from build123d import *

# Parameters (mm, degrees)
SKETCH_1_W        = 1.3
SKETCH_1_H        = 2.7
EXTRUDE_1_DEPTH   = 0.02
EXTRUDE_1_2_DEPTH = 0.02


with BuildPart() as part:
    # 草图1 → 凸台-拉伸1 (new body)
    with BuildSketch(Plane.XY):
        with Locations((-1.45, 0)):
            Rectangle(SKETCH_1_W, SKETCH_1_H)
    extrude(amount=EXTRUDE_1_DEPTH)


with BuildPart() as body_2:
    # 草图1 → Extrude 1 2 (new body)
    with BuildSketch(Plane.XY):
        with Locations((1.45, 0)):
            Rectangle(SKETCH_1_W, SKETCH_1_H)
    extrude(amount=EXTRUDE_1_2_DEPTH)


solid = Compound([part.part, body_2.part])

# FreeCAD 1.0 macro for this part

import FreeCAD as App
import Part
import Sketcher

doc = App.newDocument("Part")
body = doc.addObject("PartDesign::Body", "Body")

sketch1 = body.newObject("Sketcher::SketchObject", "Sketch")
sketch1.AttachmentSupport = (doc.getObject("XY_Plane"), [""])
sketch1.MapMode = "FlatFace"
sketch1.addGeometry([
    Part.LineSegment(App.Vector(-2.1, 1.4, 0), App.Vector(-2.1, -1.4, 0)),
    Part.LineSegment(App.Vector(-2.1, -1.4, 0), App.Vector(-0.8, -1.4, 0)),
    Part.LineSegment(App.Vector(-0.8, -1.4, 0), App.Vector(-0.8, 1.4, 0)),
    Part.LineSegment(App.Vector(-0.8, 1.4, 0), App.Vector(-2.1, 1.4, 0)),
], False)
sketch1.addConstraint([
    Sketcher.Constraint("Coincident", 0, 2, 1, 1),
    Sketcher.Constraint("Coincident", 1, 2, 2, 1),
    Sketcher.Constraint("Coincident", 2, 2, 3, 1),
    Sketcher.Constraint("Coincident", 3, 2, 0, 1),
    Sketcher.Constraint("Vertical", 0),
    Sketcher.Constraint("Horizontal", 1),
    Sketcher.Constraint("Vertical", 2),
    Sketcher.Constraint("Horizontal", 3),
    Sketcher.Constraint("DistanceX", 1, 1, 1, 2, 1.3),
    Sketcher.Constraint("DistanceY", 0, 2, 0, 1, 2.7),
    Sketcher.Constraint("DistanceX", 0, 2, -1, 1, 2.1),
    Sketcher.Constraint("DistanceY", 0, 2, -1, 1, 1.35),
])
pad1 = body.newObject("PartDesign::Pad", "Pad")
pad1.Profile = sketch1
pad1.Length = 0.02
body2 = doc.addObject("PartDesign::Body", "Body001")

sketch2 = body2.newObject("Sketcher::SketchObject", "Sketch001")
sketch2.AttachmentSupport = (doc.getObject("XY_Plane001"), [""])
sketch2.MapMode = "FlatFace"
sketch2.addGeometry([
    Part.LineSegment(App.Vector(0.8, 1.4, 0), App.Vector(0.8, -1.4, 0)),
    Part.LineSegment(App.Vector(0.8, -1.4, 0), App.Vector(2.1, -1.4, 0)),
    Part.LineSegment(App.Vector(2.1, -1.4, 0), App.Vector(2.1, 1.4, 0)),
    Part.LineSegment(App.Vector(2.1, 1.4, 0), App.Vector(0.8, 1.4, 0)),
], False)
sketch2.addConstraint([
    Sketcher.Constraint("Coincident", 0, 2, 1, 1),
    Sketcher.Constraint("Coincident", 1, 2, 2, 1),
    Sketcher.Constraint("Coincident", 2, 2, 3, 1),
    Sketcher.Constraint("Coincident", 3, 2, 0, 1),
    Sketcher.Constraint("Vertical", 0),
    Sketcher.Constraint("Horizontal", 1),
    Sketcher.Constraint("Vertical", 2),
    Sketcher.Constraint("Horizontal", 3),
    Sketcher.Constraint("DistanceX", 1, 1, 1, 2, 1.3),
    Sketcher.Constraint("DistanceY", 0, 2, 0, 1, 2.7),
    Sketcher.Constraint("DistanceX", -1, 1, 0, 2, 0.8),
    Sketcher.Constraint("DistanceY", 0, 2, -1, 1, 1.35),
])
pad2 = body2.newObject("PartDesign::Pad", "Pad001")
pad2.Profile = sketch2
pad2.Length = 0.02

doc.recompute()
